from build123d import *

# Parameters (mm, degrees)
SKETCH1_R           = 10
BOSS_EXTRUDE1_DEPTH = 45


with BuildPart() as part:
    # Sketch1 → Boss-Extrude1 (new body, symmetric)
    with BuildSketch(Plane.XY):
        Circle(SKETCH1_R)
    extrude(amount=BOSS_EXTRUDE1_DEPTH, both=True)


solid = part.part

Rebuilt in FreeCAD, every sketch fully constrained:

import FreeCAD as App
import Part
import Sketcher
Q = App.Units.Quantity

doc = App.newDocument("Part")
params = doc.addObject("Spreadsheet::Sheet", "Params")
for row, (alias, value) in enumerate([
    ("sketch1_diameter", "20 mm"),
    ("pad1_length", "90 mm"),
], start=1):
    params.set(f"A{row}", alias)
    params.set(f"B{row}", "=" + value)
    params.setAlias(f"B{row}", alias)

body = doc.addObject("PartDesign::Body", "Body")

sketch1 = body.newObject("Sketcher::SketchObject", "Sketch")
sketch1.AttachmentSupport = (doc.getObject("XY_Plane"), [""])
sketch1.MapMode = "FlatFace"
sketch1.addGeometry(Part.Circle(App.Vector(0, 0, 0), App.Vector(0, 0, 1), 10), False)
sketch1.addConstraint([
    Sketcher.Constraint("Coincident", 0, 3, -1, 1),
    Sketcher.Constraint("Diameter", 0, Q("20 mm")),
])
sketch1.setExpression("Constraints[1]", "Params.sketch1_diameter")
pad1 = body.newObject("PartDesign::Pad", "Pad")
pad1.Profile = sketch1
pad1.setExpression("Length", "Params.pad1_length")
pad1.Midplane = True

doc.recompute()
